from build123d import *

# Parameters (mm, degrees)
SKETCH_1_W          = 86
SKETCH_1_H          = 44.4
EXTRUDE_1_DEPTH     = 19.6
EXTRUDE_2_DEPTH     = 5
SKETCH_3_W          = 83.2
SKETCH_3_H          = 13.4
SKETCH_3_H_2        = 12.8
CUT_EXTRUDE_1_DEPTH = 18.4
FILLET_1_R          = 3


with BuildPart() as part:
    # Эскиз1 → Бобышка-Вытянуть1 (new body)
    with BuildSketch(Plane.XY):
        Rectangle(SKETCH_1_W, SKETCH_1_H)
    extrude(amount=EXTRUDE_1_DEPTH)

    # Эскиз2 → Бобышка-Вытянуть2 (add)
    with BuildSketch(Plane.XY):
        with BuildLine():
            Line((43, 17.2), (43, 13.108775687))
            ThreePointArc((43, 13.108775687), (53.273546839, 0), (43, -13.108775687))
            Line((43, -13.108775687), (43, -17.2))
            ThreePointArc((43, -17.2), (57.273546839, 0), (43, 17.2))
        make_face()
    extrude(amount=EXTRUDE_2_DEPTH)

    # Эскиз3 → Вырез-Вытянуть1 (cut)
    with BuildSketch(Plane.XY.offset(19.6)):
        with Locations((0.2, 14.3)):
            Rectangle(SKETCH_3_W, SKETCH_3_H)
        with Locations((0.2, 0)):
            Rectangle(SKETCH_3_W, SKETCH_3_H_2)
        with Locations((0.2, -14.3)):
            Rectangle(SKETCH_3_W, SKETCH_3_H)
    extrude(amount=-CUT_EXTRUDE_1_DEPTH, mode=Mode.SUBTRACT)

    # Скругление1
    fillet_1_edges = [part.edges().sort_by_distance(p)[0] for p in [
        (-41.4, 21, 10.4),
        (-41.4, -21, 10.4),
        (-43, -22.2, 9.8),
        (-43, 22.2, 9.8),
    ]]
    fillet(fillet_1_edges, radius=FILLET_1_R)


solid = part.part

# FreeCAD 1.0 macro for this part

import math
import FreeCAD as App
import Part
import Sketcher

V = App.Vector
Q = App.Units.Quantity


def edges_at(feature, points):
    """Names of the edges that pass closest to the given points."""
    edges = feature.Shape.Edges
    near = lambda p: min(range(len(edges)), key=lambda i: edges[i].distToShape(Part.Vertex(*p))[0])
    return sorted({f"Edge{near(p) + 1}" for p in points})

doc = App.newDocument("Part")
body = doc.addObject("PartDesign::Body", "Body")

# Sketch on XY plane
sketch1 = body.newObject("Sketcher::SketchObject", "Sketch")
sketch1.AttachmentSupport = (doc.getObject("XY_Plane"), [""])
sketch1.MapMode = "FlatFace"
sketch1.addGeometry(Part.LineSegment(V(-43, 22, 0), V(-43, -22, 0)), False)
sketch1.addGeometry(Part.LineSegment(V(-43, -22, 0), V(43, -22, 0)), False)
sketch1.addGeometry(Part.LineSegment(V(43, -22, 0), V(43, 22, 0)), False)
sketch1.addGeometry(Part.LineSegment(V(43, 22, 0), V(-43, 22, 0)), False)
sketch1.addConstraint(Sketcher.Constraint("Coincident", 0, 2, 1, 1))
sketch1.addConstraint(Sketcher.Constraint("Coincident", 1, 2, 2, 1))
sketch1.addConstraint(Sketcher.Constraint("Coincident", 2, 2, 3, 1))
sketch1.addConstraint(Sketcher.Constraint("Coincident", 3, 2, 0, 1))
sketch1.addConstraint(Sketcher.Constraint("Vertical", 0))
sketch1.addConstraint(Sketcher.Constraint("Horizontal", 1))
sketch1.addConstraint(Sketcher.Constraint("Vertical", 2))
sketch1.addConstraint(Sketcher.Constraint("Horizontal", 3))
sketch1.addConstraint(Sketcher.Constraint("Symmetric", 0, 2, 2, 2, -1, 1))
sketch1.addConstraint(Sketcher.Constraint("DistanceX", 1, 1, 1, 2, Q("86 mm")))
sketch1.addConstraint(Sketcher.Constraint("DistanceY", 0, 2, 0, 1, Q("44.4 mm")))
pad1 = body.newObject("PartDesign::Pad", "Pad")
pad1.Profile = sketch1
pad1.Length = 19.6

# Sketch on XY plane
sketch2 = body.newObject("Sketcher::SketchObject", "Sketch001")
sketch2.AttachmentSupport = (doc.getObject("XY_Plane"), [""])
sketch2.MapMode = "FlatFace"
sketch2.addGeometry(Part.LineSegment(V(43, 17.2, 0), V(43, 13.1, 0)), False)
sketch2.addGeometry(Part.ArcOfCircle(Part.Circle(V(39.8, 0, 0), V(0, 0, 1), 13.5), math.radians(-76), math.radians(76)), False)
sketch2.addGeometry(Part.LineSegment(V(43, -13.1, 0), V(43, -17.2, 0)), False)
sketch2.addGeometry(Part.ArcOfCircle(Part.Circle(V(39.8, 0, 0), V(0, 0, 1), 17.5), math.radians(-79), math.radians(79)), False)
sketch2.addConstraint(Sketcher.Constraint("Coincident", 0, 2, 1, 2))
sketch2.addConstraint(Sketcher.Constraint("Coincident", 1, 1, 2, 1))
sketch2.addConstraint(Sketcher.Constraint("Coincident", 2, 2, 3, 1))
sketch2.addConstraint(Sketcher.Constraint("Coincident", 3, 2, 0, 1))
sketch2.addConstraint(Sketcher.Constraint("Vertical", 0))
sketch2.addConstraint(Sketcher.Constraint("Vertical", 2))
sketch2.addConstraint(Sketcher.Constraint("Coincident", 3, 3, 1, 3))
sketch2.addConstraint(Sketcher.Constraint("Symmetric", 0, 2, 1, 1, -1))
sketch2.addConstraint(Sketcher.Constraint("Radius", 1, Q("13.5 mm")))
sketch2.addConstraint(Sketcher.Constraint("Radius", 3, Q("17.5 mm")))
sketch2.addConstraint(Sketcher.Constraint("DistanceX", -1, 1, 0, 2, Q("43 mm")))
sketch2.addConstraint(Sketcher.Constraint("DistanceY", 2, 2, -1, 1, Q("17.2 mm")))
pad2 = body.newObject("PartDesign::Pad", "Pad001")
pad2.Profile = sketch2
pad2.Length = 5

# Sketch on XY plane
sketch3 = body.newObject("Sketcher::SketchObject", "Sketch002")
sketch3.AttachmentSupport = (doc.getObject("XY_Plane"), [""])
sketch3.MapMode = "FlatFace"
sketch3.AttachmentOffset = App.Placement(V(0, 0, 19.6), App.Rotation())
sketch3.addGeometry(Part.LineSegment(V(-41, 21, 0), V(-41, 8, 0)), False)
sketch3.addGeometry(Part.LineSegment(V(-41, 8, 0), V(42, 8, 0)), False)
sketch3.addGeometry(Part.LineSegment(V(42, 8, 0), V(42, 21, 0)), False)
sketch3.addGeometry(Part.LineSegment(V(42, 21, 0), V(-41, 21, 0)), False)
sketch3.addGeometry(Part.LineSegment(V(-41, 6, 0), V(-41, -6, 0)), False)
sketch3.addGeometry(Part.LineSegment(V(-41, -6, 0), V(42, -6, 0)), False)
sketch3.addGeometry(Part.LineSegment(V(42, -6, 0), V(42, 6, 0)), False)
sketch3.addGeometry(Part.LineSegment(V(42, 6, 0), V(-41, 6, 0)), False)
sketch3.addGeometry(Part.LineSegment(V(-41, -8, 0), V(-41, -21, 0)), False)
sketch3.addGeometry(Part.LineSegment(V(-41, -21, 0), V(42, -21, 0)), False)
sketch3.addGeometry(Part.LineSegment(V(42, -21, 0), V(42, -8, 0)), False)
sketch3.addGeometry(Part.LineSegment(V(42, -8, 0), V(-41, -8, 0)), False)
sketch3.addConstraint(Sketcher.Constraint("Coincident", 0, 2, 1, 1))
sketch3.addConstraint(Sketcher.Constraint("Coincident", 1, 2, 2, 1))
sketch3.addConstraint(Sketcher.Constraint("Coincident", 2, 2, 3, 1))
sketch3.addConstraint(Sketcher.Constraint("Coincident", 3, 2, 0, 1))
sketch3.addConstraint(Sketcher.Constraint("Coincident", 4, 2, 5, 1))
sketch3.addConstraint(Sketcher.Constraint("Coincident", 5, 2, 6, 1))
sketch3.addConstraint(Sketcher.Constraint("Coincident", 6, 2, 7, 1))
sketch3.addConstraint(Sketcher.Constraint("Coincident", 7, 2, 4, 1))
sketch3.addConstraint(Sketcher.Constraint("Coincident", 8, 2, 9, 1))
sketch3.addConstraint(Sketcher.Constraint("Coincident", 9, 2, 10, 1))
sketch3.addConstraint(Sketcher.Constraint("Coincident", 10, 2, 11, 1))
sketch3.addConstraint(Sketcher.Constraint("Coincident", 11, 2, 8, 1))
sketch3.addConstraint(Sketcher.Constraint("Vertical", 0))
sketch3.addConstraint(Sketcher.Constraint("Horizontal", 1))
sketch3.addConstraint(Sketcher.Constraint("Vertical", 2))
sketch3.addConstraint(Sketcher.Constraint("Horizontal", 3))
sketch3.addConstraint(Sketcher.Constraint("Vertical", 4))
sketch3.addConstraint(Sketcher.Constraint("Horizontal", 5))
sketch3.addConstraint(Sketcher.Constraint("Vertical", 6))
sketch3.addConstraint(Sketcher.Constraint("Horizontal", 7))
sketch3.addConstraint(Sketcher.Constraint("Vertical", 8))
sketch3.addConstraint(Sketcher.Constraint("Horizontal", 9))
sketch3.addConstraint(Sketcher.Constraint("Vertical", 10))
sketch3.addConstraint(Sketcher.Constraint("Horizontal", 11))
sketch3.addConstraint(Sketcher.Constraint("Symmetric", 3, 2, 8, 2, -1))
sketch3.addConstraint(Sketcher.Constraint("Symmetric", 1, 2, 10, 2, -1))
sketch3.addConstraint(Sketcher.Constraint("Vertical", 3, 2, 4, 2))
sketch3.addConstraint(Sketcher.Constraint("Vertical", 2, 2, 5, 2))
sketch3.addConstraint(Sketcher.Constraint("DistanceX", 1, 1, 1, 2, Q("83.2 mm")))
sketch3.addConstraint(Sketcher.Constraint("DistanceY", 0, 2, 0, 1, Q("13.4 mm")))
sketch3.addConstraint(Sketcher.Constraint("DistanceY", 4, 2, 4, 1, Q("12.8 mm")))
sketch3.addConstraint(Sketcher.Constraint("DistanceY", -1, 1, 2, 2, Q("21 mm")))
sketch3.addConstraint(Sketcher.Constraint("DistanceY", 4, 2, 0, 2, Q("14 mm")))
sketch3.addConstraint(Sketcher.Constraint("DistanceX", 0, 2, -1, 1, Q("41.4 mm")))
pocket1 = body.newObject("PartDesign::Pocket", "Pocket")
pocket1.Profile = sketch3
pocket1.Length = 18.4
doc.recompute()

fillet = body.newObject("PartDesign::Fillet", "Fillet")
fillet.Base = (pocket1, edges_at(pocket1, [
    (-41.4, 21, 10.4),
    (-41.4, -21, 10.4),
    (-43, -22.2, 9.8),
    (-43, 22.2, 9.8),
]))
fillet.Radius = 3

doc.recompute()
